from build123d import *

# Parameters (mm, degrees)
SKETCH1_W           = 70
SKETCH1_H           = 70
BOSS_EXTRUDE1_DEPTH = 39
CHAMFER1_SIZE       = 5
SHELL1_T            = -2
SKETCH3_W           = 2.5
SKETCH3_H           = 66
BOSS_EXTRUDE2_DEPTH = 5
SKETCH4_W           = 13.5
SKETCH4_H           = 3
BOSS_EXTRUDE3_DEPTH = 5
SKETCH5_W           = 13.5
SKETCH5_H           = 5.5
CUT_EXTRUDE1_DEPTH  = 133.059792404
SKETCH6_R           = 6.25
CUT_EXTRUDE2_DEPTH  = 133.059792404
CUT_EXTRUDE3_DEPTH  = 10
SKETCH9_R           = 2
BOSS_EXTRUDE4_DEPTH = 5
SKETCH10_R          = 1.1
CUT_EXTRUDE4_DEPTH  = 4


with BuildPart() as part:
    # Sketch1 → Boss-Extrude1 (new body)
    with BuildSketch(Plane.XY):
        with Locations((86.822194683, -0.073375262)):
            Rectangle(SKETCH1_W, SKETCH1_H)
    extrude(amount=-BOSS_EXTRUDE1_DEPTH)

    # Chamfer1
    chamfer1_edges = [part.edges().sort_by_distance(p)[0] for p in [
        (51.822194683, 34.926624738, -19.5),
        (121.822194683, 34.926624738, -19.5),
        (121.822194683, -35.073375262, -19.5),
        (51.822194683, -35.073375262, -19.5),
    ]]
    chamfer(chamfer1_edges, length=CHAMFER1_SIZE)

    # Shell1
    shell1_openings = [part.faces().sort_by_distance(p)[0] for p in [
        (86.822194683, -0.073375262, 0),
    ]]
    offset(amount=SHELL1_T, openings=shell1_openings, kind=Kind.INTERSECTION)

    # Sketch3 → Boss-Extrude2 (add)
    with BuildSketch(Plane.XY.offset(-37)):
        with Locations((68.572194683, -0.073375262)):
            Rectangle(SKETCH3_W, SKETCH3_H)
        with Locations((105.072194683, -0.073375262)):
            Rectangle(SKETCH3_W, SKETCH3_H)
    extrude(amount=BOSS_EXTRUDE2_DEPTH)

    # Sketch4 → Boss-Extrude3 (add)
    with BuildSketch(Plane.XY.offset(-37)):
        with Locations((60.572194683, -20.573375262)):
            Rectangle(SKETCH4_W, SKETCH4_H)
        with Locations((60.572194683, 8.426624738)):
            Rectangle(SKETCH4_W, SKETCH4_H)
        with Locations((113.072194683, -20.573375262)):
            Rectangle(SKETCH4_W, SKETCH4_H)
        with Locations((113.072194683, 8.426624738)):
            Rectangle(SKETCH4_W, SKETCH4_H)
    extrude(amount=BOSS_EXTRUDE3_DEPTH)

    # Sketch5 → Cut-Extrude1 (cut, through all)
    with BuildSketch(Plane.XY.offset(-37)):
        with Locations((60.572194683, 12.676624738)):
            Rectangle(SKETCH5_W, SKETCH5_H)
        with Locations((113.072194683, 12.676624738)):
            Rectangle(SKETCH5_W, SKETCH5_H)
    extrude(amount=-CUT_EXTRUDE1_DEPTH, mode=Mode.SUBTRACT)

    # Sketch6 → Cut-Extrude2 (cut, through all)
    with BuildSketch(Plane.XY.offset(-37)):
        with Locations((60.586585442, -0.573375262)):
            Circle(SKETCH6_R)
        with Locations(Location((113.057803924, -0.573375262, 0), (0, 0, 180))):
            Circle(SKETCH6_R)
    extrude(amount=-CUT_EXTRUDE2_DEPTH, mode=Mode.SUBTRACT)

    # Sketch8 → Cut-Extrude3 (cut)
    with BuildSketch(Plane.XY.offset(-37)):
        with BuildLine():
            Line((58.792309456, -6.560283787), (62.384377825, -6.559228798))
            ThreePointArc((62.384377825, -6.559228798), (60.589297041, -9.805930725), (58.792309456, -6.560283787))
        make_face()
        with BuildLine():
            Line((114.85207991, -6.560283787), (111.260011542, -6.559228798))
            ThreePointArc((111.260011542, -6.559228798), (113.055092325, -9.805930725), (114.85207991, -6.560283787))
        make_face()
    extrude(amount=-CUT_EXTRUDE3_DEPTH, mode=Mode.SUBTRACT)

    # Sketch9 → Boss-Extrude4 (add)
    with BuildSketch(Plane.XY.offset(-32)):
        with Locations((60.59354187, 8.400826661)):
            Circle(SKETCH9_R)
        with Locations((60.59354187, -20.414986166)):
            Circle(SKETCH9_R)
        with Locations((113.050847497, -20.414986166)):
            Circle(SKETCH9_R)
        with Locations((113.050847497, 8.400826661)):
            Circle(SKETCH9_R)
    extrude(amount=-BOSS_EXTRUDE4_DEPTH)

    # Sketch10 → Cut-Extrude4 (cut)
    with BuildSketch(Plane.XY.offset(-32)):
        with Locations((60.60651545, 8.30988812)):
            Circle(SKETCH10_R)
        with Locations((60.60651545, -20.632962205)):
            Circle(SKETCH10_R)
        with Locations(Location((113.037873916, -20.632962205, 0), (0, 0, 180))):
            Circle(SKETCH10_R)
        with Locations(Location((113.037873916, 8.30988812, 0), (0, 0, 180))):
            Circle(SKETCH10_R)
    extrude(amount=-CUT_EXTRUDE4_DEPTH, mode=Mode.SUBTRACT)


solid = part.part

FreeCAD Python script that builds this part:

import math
import FreeCAD as App
import Part
import Sketcher


def edges_at(feature, points):
    """Names of the edges that pass closest to the given points."""
    edges = feature.Shape.Edges
    near = lambda p: min(range(len(edges)), key=lambda i: edges[i].distToShape(Part.Vertex(*p))[0])
    return sorted({f"Edge{near(p) + 1}" for p in points})


def faces_at(feature, points):
    """Names of the faces that lie closest to the given points."""
    faces = feature.Shape.Faces
    near = lambda p: min(range(len(faces)), key=lambda i: faces[i].distToShape(Part.Vertex(*p))[0])
    return sorted({f"Face{near(p) + 1}" for p in points})

doc = App.newDocument("Part")
body = doc.addObject("PartDesign::Body", "Body")

# Sketch on XY plane
sketch1 = doc.addObject("Sketcher::SketchObject", "Sketch")
body.addObject(sketch1)
sketch1.AttachmentSupport = (doc.XY_Plane, [""])
sketch1.MapMode = "FlatFace"
sketch1.addGeometry([
    Part.LineSegment(App.Vector(52, 35, 0), App.Vector(52, -35, 0)),
    Part.LineSegment(App.Vector(52, -35, 0), App.Vector(122, -35, 0)),
    Part.LineSegment(App.Vector(122, -35, 0), App.Vector(122, 35, 0)),
    Part.LineSegment(App.Vector(122, 35, 0), App.Vector(52, 35, 0)),
], False)
sketch1.addConstraint([
    Sketcher.Constraint("Coincident", 0, 2, 1, 1),
    Sketcher.Constraint("Coincident", 1, 2, 2, 1),
    Sketcher.Constraint("Coincident", 2, 2, 3, 1),
    Sketcher.Constraint("Coincident", 3, 2, 0, 1),
    Sketcher.Constraint("Vertical", 0),
    Sketcher.Constraint("Horizontal", 1),
    Sketcher.Constraint("Vertical", 2),
    Sketcher.Constraint("Horizontal", 3),
    Sketcher.Constraint("Equal", 3, 0),
    Sketcher.Constraint("DistanceX", 1, 1, 1, 2, 70.0),
    Sketcher.Constraint("DistanceX", -1, 1, 0, 2, 51.822195),
    Sketcher.Constraint("DistanceY", 0, 2, -1, 1, 35.073375),
])
pad1 = doc.addObject("PartDesign::Pad", "Pad")
body.addObject(pad1)
pad1.Profile = sketch1
pad1.Length = 39
pad1.Reversed = True
doc.recompute()

chamfer = doc.addObject("PartDesign::Chamfer", "Chamfer")
body.addObject(chamfer)
chamfer.Base = (pad1, edges_at(pad1, [
    (51.822, 34.927, -19.5),
    (121.822, 34.927, -19.5),
    (121.822, -35.073, -19.5),
    (51.822, -35.073, -19.5),
]))
chamfer.Size = 5
doc.recompute()

thickness = doc.addObject("PartDesign::Thickness", "Thickness")
body.addObject(thickness)
thickness.Base = (chamfer, faces_at(chamfer, [(86.822, -0.073, 0)]))
thickness.Value = 2
thickness.Reversed = True
thickness.Join = "Intersection"

# Sketch on XY plane
sketch2 = doc.addObject("Sketcher::SketchObject", "Sketch001")
body.addObject(sketch2)
sketch2.AttachmentSupport = (doc.XY_Plane, [""])
sketch2.MapMode = "FlatFace"
sketch2.AttachmentOffset = App.Placement(App.Vector(0, 0, -37), App.Rotation())
sketch2.addGeometry([
    Part.LineSegment(App.Vector(67.3, 32.9, 0), App.Vector(67.3, -33.1, 0)),  # 0
    Part.LineSegment(App.Vector(67.3, -33.1, 0), App.Vector(69.8, -33.1, 0)),  # 1
    Part.LineSegment(App.Vector(69.8, -33.1, 0), App.Vector(69.8, 32.9, 0)),  # 2
    Part.LineSegment(App.Vector(69.8, 32.9, 0), App.Vector(67.3, 32.9, 0)),  # 3
    Part.LineSegment(App.Vector(103.8, 32.9, 0), App.Vector(103.8, -33.1, 0)),  # 4
    Part.LineSegment(App.Vector(103.8, -33.1, 0), App.Vector(106.3, -33.1, 0)),  # 5
    Part.LineSegment(App.Vector(106.3, -33.1, 0), App.Vector(106.3, 32.9, 0)),  # 6
    Part.LineSegment(App.Vector(106.3, 32.9, 0), App.Vector(103.8, 32.9, 0)),  # 7
], False)
sketch2.addConstraint([
    Sketcher.Constraint("Coincident", 0, 2, 1, 1),
    Sketcher.Constraint("Coincident", 1, 2, 2, 1),
    Sketcher.Constraint("Coincident", 2, 2, 3, 1),
    Sketcher.Constraint("Coincident", 3, 2, 0, 1),
    Sketcher.Constraint("Coincident", 4, 2, 5, 1),
    Sketcher.Constraint("Coincident", 5, 2, 6, 1),
    Sketcher.Constraint("Coincident", 6, 2, 7, 1),
    Sketcher.Constraint("Coincident", 7, 2, 4, 1),
    Sketcher.Constraint("Vertical", 0),
    Sketcher.Constraint("Horizontal", 1),
    Sketcher.Constraint("Vertical", 2),
    Sketcher.Constraint("Horizontal", 3),
    Sketcher.Constraint("Vertical", 4),
    Sketcher.Constraint("Horizontal", 5),
    Sketcher.Constraint("Vertical", 6),
    Sketcher.Constraint("Horizontal", 7),
    Sketcher.Constraint("Horizontal", 1, 2, 4, 2),
    Sketcher.Constraint("Horizontal", 3, 2, 6, 2),
    Sketcher.Constraint("Equal", 3, 5),
    Sketcher.Constraint("DistanceY", 0, 2, 0, 1, 66.0),
    Sketcher.Constraint("DistanceX", 1, 1, 1, 2, 2.5),
    Sketcher.Constraint("DistanceX", 1, 2, 4, 2, 34.0),
    Sketcher.Constraint("DistanceX", -1, 1, 0, 2, 67.322195),
    Sketcher.Constraint("DistanceY", 0, 2, -1, 1, 33.073375),
])
pad2 = doc.addObject("PartDesign::Pad", "Pad001")
body.addObject(pad2)
pad2.Profile = sketch2
pad2.Length = 5

# Sketch on XY plane
sketch3 = doc.addObject("Sketcher::SketchObject", "Sketch002")
body.addObject(sketch3)
sketch3.AttachmentSupport = (doc.XY_Plane, [""])
sketch3.MapMode = "FlatFace"
sketch3.AttachmentOffset = App.Placement(App.Vector(0, 0, -37), App.Rotation())
sketch3.addGeometry([
    Part.LineSegment(App.Vector(53.8, -19.1, 0), App.Vector(53.8, -22.1, 0)),  # 0
    Part.LineSegment(App.Vector(53.8, -22.1, 0), App.Vector(67.3, -22.1, 0)),  # 1
    Part.LineSegment(App.Vector(67.3, -22.1, 0), App.Vector(67.3, -19.1, 0)),  # 2
    Part.LineSegment(App.Vector(67.3, -19.1, 0), App.Vector(53.8, -19.1, 0)),  # 3
    Part.LineSegment(App.Vector(53.8, 9.9, 0), App.Vector(53.8, 6.9, 0)),  # 4
    Part.LineSegment(App.Vector(53.8, 6.9, 0), App.Vector(67.3, 6.9, 0)),  # 5
    Part.LineSegment(App.Vector(67.3, 6.9, 0), App.Vector(67.3, 9.9, 0)),  # 6
    Part.LineSegment(App.Vector(67.3, 9.9, 0), App.Vector(53.8, 9.9, 0)),  # 7
    Part.LineSegment(App.Vector(106.3, -19.1, 0), App.Vector(106.3, -22.1, 0)),  # 8
    Part.LineSegment(App.Vector(106.3, -22.1, 0), App.Vector(119.8, -22.1, 0)),  # 9
    Part.LineSegment(App.Vector(119.8, -22.1, 0), App.Vector(119.8, -19.1, 0)),  # 10
    Part.LineSegment(App.Vector(119.8, -19.1, 0), App.Vector(106.3, -19.1, 0)),  # 11
    Part.LineSegment(App.Vector(106.3, 9.9, 0), App.Vector(106.3, 6.9, 0)),  # 12
    Part.LineSegment(App.Vector(106.3, 6.9, 0), App.Vector(119.8, 6.9, 0)),  # 13
    Part.LineSegment(App.Vector(119.8, 6.9, 0), App.Vector(119.8, 9.9, 0)),  # 14
    Part.LineSegment(App.Vector(119.8, 9.9, 0), App.Vector(106.3, 9.9, 0)),  # 15
], False)
sketch3.addConstraint([
    Sketcher.Constraint("Coincident", 0, 2, 1, 1),
    Sketcher.Constraint("Coincident", 1, 2, 2, 1),
    Sketcher.Constraint("Coincident", 2, 2, 3, 1),
    Sketcher.Constraint("Coincident", 3, 2, 0, 1),
    Sketcher.Constraint("Coincident", 4, 2, 5, 1),
    Sketcher.Constraint("Coincident", 5, 2, 6, 1),
    Sketcher.Constraint("Coincident", 6, 2, 7, 1),
    Sketcher.Constraint("Coincident", 7, 2, 4, 1),
    Sketcher.Constraint("Coincident", 8, 2, 9, 1),
    Sketcher.Constraint("Coincident", 9, 2, 10, 1),
    Sketcher.Constraint("Coincident", 10, 2, 11, 1),
    Sketcher.Constraint("Coincident", 11, 2, 8, 1),
    Sketcher.Constraint("Coincident", 12, 2, 13, 1),
    Sketcher.Constraint("Coincident", 13, 2, 14, 1),
    Sketcher.Constraint("Coincident", 14, 2, 15, 1),
    Sketcher.Constraint("Coincident", 15, 2, 12, 1),
    Sketcher.Constraint("Vertical", 0),
    Sketcher.Constraint("Horizontal", 1),
    Sketcher.Constraint("Vertical", 2),
    Sketcher.Constraint("Horizontal", 3),
    Sketcher.Constraint("Vertical", 4),
    Sketcher.Constraint("Horizontal", 5),
    Sketcher.Constraint("Vertical", 6),
    Sketcher.Constraint("Horizontal", 7),
    Sketcher.Constraint("Vertical", 8),
    Sketcher.Constraint("Horizontal", 9),
    Sketcher.Constraint("Vertical", 10),
    Sketcher.Constraint("Horizontal", 11),
    Sketcher.Constraint("Vertical", 12),
    Sketcher.Constraint("Horizontal", 13),
    Sketcher.Constraint("Vertical", 14),
    Sketcher.Constraint("Horizontal", 15),
    Sketcher.Constraint("Horizontal", 1, 2, 8, 2),
    Sketcher.Constraint("Horizontal", 3, 2, 10, 2),
    Sketcher.Constraint("Horizontal", 5, 2, 12, 2),
    Sketcher.Constraint("Horizontal", 7, 2, 14, 2),
    Sketcher.Constraint("Vertical", 3, 2, 4, 2),
    Sketcher.Constraint("Vertical", 2, 2, 5, 2),
    Sketcher.Constraint("Vertical", 11, 2, 12, 2),
    Sketcher.Constraint("Vertical", 10, 2, 13, 2),
    Sketcher.Constraint("Equal", 7, 9),
    Sketcher.Constraint("Equal", 2, 4),
    Sketcher.Constraint("DistanceY", 0, 2, 0, 1, 3.0),
    Sketcher.Constraint("DistanceX", 1, 1, 1, 2, 13.5),
    Sketcher.Constraint("DistanceY", 3, 2, 4, 2, 26.0),
    Sketcher.Constraint("DistanceX", 1, 2, 8, 2, 39.0),
    Sketcher.Constraint("DistanceX", -1, 1, 0, 2, 53.822195),
    Sketcher.Constraint("DistanceY", 0, 2, -1, 1, 22.073375),
])
pad3 = doc.addObject("PartDesign::Pad", "Pad002")
body.addObject(pad3)
pad3.Profile = sketch3
pad3.Length = 5

# Sketch on XY plane
sketch4 = doc.addObject("Sketcher::SketchObject", "Sketch003")
body.addObject(sketch4)
sketch4.AttachmentSupport = (doc.XY_Plane, [""])
sketch4.MapMode = "FlatFace"
sketch4.AttachmentOffset = App.Placement(App.Vector(0, 0, -37), App.Rotation())
sketch4.addGeometry([
    Part.LineSegment(App.Vector(54, 15, 0), App.Vector(54, 10, 0)),  # 0
    Part.LineSegment(App.Vector(54, 10, 0), App.Vector(67, 10, 0)),  # 1
    Part.LineSegment(App.Vector(67, 10, 0), App.Vector(67, 15, 0)),  # 2
    Part.LineSegment(App.Vector(67, 15, 0), App.Vector(54, 15, 0)),  # 3
    Part.LineSegment(App.Vector(106, 15, 0), App.Vector(106, 10, 0)),  # 4
    Part.LineSegment(App.Vector(106, 10, 0), App.Vector(120, 10, 0)),  # 5
    Part.LineSegment(App.Vector(120, 10, 0), App.Vector(120, 15, 0)),  # 6
    Part.LineSegment(App.Vector(120, 15, 0), App.Vector(106, 15, 0)),  # 7
], False)
sketch4.addConstraint([
    Sketcher.Constraint("Coincident", 0, 2, 1, 1),
    Sketcher.Constraint("Coincident", 1, 2, 2, 1),
    Sketcher.Constraint("Coincident", 2, 2, 3, 1),
    Sketcher.Constraint("Coincident", 3, 2, 0, 1),
    Sketcher.Constraint("Coincident", 4, 2, 5, 1),
    Sketcher.Constraint("Coincident", 5, 2, 6, 1),
    Sketcher.Constraint("Coincident", 6, 2, 7, 1),
    Sketcher.Constraint("Coincident", 7, 2, 4, 1),
    Sketcher.Constraint("Vertical", 0),
    Sketcher.Constraint("Horizontal", 1),
    Sketcher.Constraint("Vertical", 2),
    Sketcher.Constraint("Horizontal", 3),
    Sketcher.Constraint("Vertical", 4),
    Sketcher.Constraint("Horizontal", 5),
    Sketcher.Constraint("Vertical", 6),
    Sketcher.Constraint("Horizontal", 7),
    Sketcher.Constraint("Horizontal", 1, 2, 4, 2),
    Sketcher.Constraint("Horizontal", 3, 2, 6, 2),
    Sketcher.Constraint("Equal", 3, 5),
    Sketcher.Constraint("DistanceX", 1, 1, 1, 2, 13.5),
    Sketcher.Constraint("DistanceY", 0, 2, 0, 1, 5.5),
    Sketcher.Constraint("DistanceX", 1, 2, 4, 2, 39.0),
    Sketcher.Constraint("DistanceX", -1, 1, 0, 2, 53.822195),
    Sketcher.Constraint("DistanceY", -1, 1, 0, 2, 9.926625),
])
pocket1 = doc.addObject("PartDesign::Pocket", "Pocket")
body.addObject(pocket1)
pocket1.Profile = sketch4
pocket1.Type = "ThroughAll"

# Sketch on XY plane
sketch5 = doc.addObject("Sketcher::SketchObject", "Sketch004")
body.addObject(sketch5)
sketch5.AttachmentSupport = (doc.XY_Plane, [""])
sketch5.MapMode = "FlatFace"
sketch5.AttachmentOffset = App.Placement(App.Vector(0, 0, -37), App.Rotation())
sketch5.addGeometry([
    Part.Circle(App.Vector(61, -1, 0), App.Vector(0, 0, 1), 6),
    Part.Circle(App.Vector(113, -1, 0), App.Vector(0, 0, 1), 6),
], False)
sketch5.addConstraint([
    Sketcher.Constraint("Equal", 0, 1),
    Sketcher.Constraint("Horizontal", 0, 3, 1, 3),
    Sketcher.Constraint("Diameter", 0, 12.5),
    Sketcher.Constraint("DistanceX", 0, 3, 1, 3, 52.471218),
    Sketcher.Constraint("DistanceX", -1, 1, 0, 3, 60.586585),
    Sketcher.Constraint("DistanceY", 0, 3, -1, 1, 0.573375),
])
pocket2 = doc.addObject("PartDesign::Pocket", "Pocket001")
body.addObject(pocket2)
pocket2.Profile = sketch5
pocket2.Type = "ThroughAll"

# Sketch on XY plane
sketch6 = doc.addObject("Sketcher::SketchObject", "Sketch005")
body.addObject(sketch6)
sketch6.AttachmentSupport = (doc.XY_Plane, [""])
sketch6.MapMode = "FlatFace"
sketch6.AttachmentOffset = App.Placement(App.Vector(0, 0, -37), App.Rotation())
sketch6.addGeometry([
    Part.LineSegment(App.Vector(62.4, -6.6, 0), App.Vector(58.8, -6.6, 0)),
    Part.ArcOfCircle(Part.Circle(App.Vector(60.6, -7.7, 0), App.Vector(0, 0, 1), 2.1), math.radians(148), math.radians(392)),
    Part.LineSegment(App.Vector(114.9, -6.6, 0), App.Vector(111.3, -6.6, 0)),
    Part.ArcOfCircle(Part.Circle(App.Vector(113.1, -7.7, 0), App.Vector(0, 0, 1), 2.1), math.radians(148), math.radians(392)),
], False)
sketch6.addConstraint([
    Sketcher.Constraint("Coincident", 0, 1, 1, 2),
    Sketcher.Constraint("Coincident", 1, 1, 0, 2),
    Sketcher.Constraint("Coincident", 2, 1, 3, 2),
    Sketcher.Constraint("Coincident", 3, 1, 2, 2),
    Sketcher.Constraint("Equal", 1, 3),
    Sketcher.Constraint("Horizontal", 1, 3, 3, 3),
    Sketcher.Constraint("Horizontal", 1, 1, 2, 1),
    Sketcher.Constraint("Horizontal", 0, 1, 3, 1),
    Sketcher.Constraint("Radius", 1, 2.11994),
    Sketcher.Constraint("Distance", 0, 3.592069),
    Sketcher.Constraint("DistanceY", 1, 3, -1, 1, 7.685991),
    Sketcher.Constraint("DistanceY", 0, 1, -1, 1, 6.559229),
    Sketcher.Constraint("DistanceX", -1, 1, 1, 1, 58.792309),
    Sketcher.Constraint("DistanceX", -1, 1, 2, 1, 114.85208),
])
pocket3 = doc.addObject("PartDesign::Pocket", "Pocket002")
body.addObject(pocket3)
pocket3.Profile = sketch6
pocket3.Length = 10

# Sketch on XY plane
sketch7 = doc.addObject("Sketcher::SketchObject", "Sketch006")
body.addObject(sketch7)
sketch7.AttachmentSupport = (doc.XY_Plane, [""])
sketch7.MapMode = "FlatFace"
sketch7.AttachmentOffset = App.Placement(App.Vector(0, 0, -32), App.Rotation())
sketch7.addGeometry([
    Part.Circle(App.Vector(60.6, 8.4, 0), App.Vector(0, 0, 1), 2),
    Part.Circle(App.Vector(60.6, -20.4, 0), App.Vector(0, 0, 1), 2),
    Part.Circle(App.Vector(113.1, -20.4, 0), App.Vector(0, 0, 1), 2),
    Part.Circle(App.Vector(113.1, 8.4, 0), App.Vector(0, 0, 1), 2),
], False)
sketch7.addConstraint([
    Sketcher.Constraint("Equal", 0, 1),
    Sketcher.Constraint("Equal", 1, 2),
    Sketcher.Constraint("Equal", 2, 3),
    Sketcher.Constraint("Horizontal", 1, 3, 2, 3),
    Sketcher.Constraint("Horizontal", 0, 3, 3, 3),
    Sketcher.Constraint("Vertical", 0, 3, 1, 3),
    Sketcher.Constraint("Vertical", 2, 3, 3, 3),
    Sketcher.Constraint("Diameter", 0, 4.0),
    Sketcher.Constraint("DistanceX", -1, 1, 0, 3, 60.593542),
    Sketcher.Constraint("DistanceY", -1, 1, 0, 3, 8.400827),
    Sketcher.Constraint("DistanceY", 1, 3, -1, 1, 20.414986),
    Sketcher.Constraint("DistanceX", -1, 1, 2, 3, 113.050847),
])
pad4 = doc.addObject("PartDesign::Pad", "Pad003")
body.addObject(pad4)
pad4.Profile = sketch7
pad4.Length = 5
pad4.Reversed = True

# Sketch on XY plane
sketch8 = doc.addObject("Sketcher::SketchObject", "Sketch007")
body.addObject(sketch8)
sketch8.AttachmentSupport = (doc.XY_Plane, [""])
sketch8.MapMode = "FlatFace"
sketch8.AttachmentOffset = App.Placement(App.Vector(0, 0, -32), App.Rotation())
sketch8.addGeometry([
    Part.Circle(App.Vector(60.6, 8.3, 0), App.Vector(0, 0, 1), 1.1),
    Part.Circle(App.Vector(60.6, -20.6, 0), App.Vector(0, 0, 1), 1.1),
    Part.Circle(App.Vector(113, -20.6, 0), App.Vector(0, 0, 1), 1.1),
    Part.Circle(App.Vector(113, 8.3, 0), App.Vector(0, 0, 1), 1.1),
], False)
sketch8.addConstraint([
    Sketcher.Constraint("Equal", 0, 1),
    Sketcher.Constraint("Equal", 1, 2),
    Sketcher.Constraint("Equal", 2, 3),
    Sketcher.Constraint("Horizontal", 1, 3, 2, 3),
    Sketcher.Constraint("Horizontal", 0, 3, 3, 3),
    Sketcher.Constraint("Vertical", 0, 3, 1, 3),
    Sketcher.Constraint("Vertical", 2, 3, 3, 3),
    Sketcher.Constraint("Diameter", 0, 2.2),
    Sketcher.Constraint("DistanceY", -1, 1, 0, 3, 8.309888),
    Sketcher.Constraint("DistanceY", 1, 3, 0, 3, 28.94285),
    Sketcher.Constraint("DistanceX", 1, 3, 2, 3, 52.431358),
    Sketcher.Constraint("DistanceX", -1, 1, 0, 3, 60.606515),
])
pocket4 = doc.addObject("PartDesign::Pocket", "Pocket003")
body.addObject(pocket4)
pocket4.Profile = sketch8
pocket4.Length = 4

doc.recompute()
